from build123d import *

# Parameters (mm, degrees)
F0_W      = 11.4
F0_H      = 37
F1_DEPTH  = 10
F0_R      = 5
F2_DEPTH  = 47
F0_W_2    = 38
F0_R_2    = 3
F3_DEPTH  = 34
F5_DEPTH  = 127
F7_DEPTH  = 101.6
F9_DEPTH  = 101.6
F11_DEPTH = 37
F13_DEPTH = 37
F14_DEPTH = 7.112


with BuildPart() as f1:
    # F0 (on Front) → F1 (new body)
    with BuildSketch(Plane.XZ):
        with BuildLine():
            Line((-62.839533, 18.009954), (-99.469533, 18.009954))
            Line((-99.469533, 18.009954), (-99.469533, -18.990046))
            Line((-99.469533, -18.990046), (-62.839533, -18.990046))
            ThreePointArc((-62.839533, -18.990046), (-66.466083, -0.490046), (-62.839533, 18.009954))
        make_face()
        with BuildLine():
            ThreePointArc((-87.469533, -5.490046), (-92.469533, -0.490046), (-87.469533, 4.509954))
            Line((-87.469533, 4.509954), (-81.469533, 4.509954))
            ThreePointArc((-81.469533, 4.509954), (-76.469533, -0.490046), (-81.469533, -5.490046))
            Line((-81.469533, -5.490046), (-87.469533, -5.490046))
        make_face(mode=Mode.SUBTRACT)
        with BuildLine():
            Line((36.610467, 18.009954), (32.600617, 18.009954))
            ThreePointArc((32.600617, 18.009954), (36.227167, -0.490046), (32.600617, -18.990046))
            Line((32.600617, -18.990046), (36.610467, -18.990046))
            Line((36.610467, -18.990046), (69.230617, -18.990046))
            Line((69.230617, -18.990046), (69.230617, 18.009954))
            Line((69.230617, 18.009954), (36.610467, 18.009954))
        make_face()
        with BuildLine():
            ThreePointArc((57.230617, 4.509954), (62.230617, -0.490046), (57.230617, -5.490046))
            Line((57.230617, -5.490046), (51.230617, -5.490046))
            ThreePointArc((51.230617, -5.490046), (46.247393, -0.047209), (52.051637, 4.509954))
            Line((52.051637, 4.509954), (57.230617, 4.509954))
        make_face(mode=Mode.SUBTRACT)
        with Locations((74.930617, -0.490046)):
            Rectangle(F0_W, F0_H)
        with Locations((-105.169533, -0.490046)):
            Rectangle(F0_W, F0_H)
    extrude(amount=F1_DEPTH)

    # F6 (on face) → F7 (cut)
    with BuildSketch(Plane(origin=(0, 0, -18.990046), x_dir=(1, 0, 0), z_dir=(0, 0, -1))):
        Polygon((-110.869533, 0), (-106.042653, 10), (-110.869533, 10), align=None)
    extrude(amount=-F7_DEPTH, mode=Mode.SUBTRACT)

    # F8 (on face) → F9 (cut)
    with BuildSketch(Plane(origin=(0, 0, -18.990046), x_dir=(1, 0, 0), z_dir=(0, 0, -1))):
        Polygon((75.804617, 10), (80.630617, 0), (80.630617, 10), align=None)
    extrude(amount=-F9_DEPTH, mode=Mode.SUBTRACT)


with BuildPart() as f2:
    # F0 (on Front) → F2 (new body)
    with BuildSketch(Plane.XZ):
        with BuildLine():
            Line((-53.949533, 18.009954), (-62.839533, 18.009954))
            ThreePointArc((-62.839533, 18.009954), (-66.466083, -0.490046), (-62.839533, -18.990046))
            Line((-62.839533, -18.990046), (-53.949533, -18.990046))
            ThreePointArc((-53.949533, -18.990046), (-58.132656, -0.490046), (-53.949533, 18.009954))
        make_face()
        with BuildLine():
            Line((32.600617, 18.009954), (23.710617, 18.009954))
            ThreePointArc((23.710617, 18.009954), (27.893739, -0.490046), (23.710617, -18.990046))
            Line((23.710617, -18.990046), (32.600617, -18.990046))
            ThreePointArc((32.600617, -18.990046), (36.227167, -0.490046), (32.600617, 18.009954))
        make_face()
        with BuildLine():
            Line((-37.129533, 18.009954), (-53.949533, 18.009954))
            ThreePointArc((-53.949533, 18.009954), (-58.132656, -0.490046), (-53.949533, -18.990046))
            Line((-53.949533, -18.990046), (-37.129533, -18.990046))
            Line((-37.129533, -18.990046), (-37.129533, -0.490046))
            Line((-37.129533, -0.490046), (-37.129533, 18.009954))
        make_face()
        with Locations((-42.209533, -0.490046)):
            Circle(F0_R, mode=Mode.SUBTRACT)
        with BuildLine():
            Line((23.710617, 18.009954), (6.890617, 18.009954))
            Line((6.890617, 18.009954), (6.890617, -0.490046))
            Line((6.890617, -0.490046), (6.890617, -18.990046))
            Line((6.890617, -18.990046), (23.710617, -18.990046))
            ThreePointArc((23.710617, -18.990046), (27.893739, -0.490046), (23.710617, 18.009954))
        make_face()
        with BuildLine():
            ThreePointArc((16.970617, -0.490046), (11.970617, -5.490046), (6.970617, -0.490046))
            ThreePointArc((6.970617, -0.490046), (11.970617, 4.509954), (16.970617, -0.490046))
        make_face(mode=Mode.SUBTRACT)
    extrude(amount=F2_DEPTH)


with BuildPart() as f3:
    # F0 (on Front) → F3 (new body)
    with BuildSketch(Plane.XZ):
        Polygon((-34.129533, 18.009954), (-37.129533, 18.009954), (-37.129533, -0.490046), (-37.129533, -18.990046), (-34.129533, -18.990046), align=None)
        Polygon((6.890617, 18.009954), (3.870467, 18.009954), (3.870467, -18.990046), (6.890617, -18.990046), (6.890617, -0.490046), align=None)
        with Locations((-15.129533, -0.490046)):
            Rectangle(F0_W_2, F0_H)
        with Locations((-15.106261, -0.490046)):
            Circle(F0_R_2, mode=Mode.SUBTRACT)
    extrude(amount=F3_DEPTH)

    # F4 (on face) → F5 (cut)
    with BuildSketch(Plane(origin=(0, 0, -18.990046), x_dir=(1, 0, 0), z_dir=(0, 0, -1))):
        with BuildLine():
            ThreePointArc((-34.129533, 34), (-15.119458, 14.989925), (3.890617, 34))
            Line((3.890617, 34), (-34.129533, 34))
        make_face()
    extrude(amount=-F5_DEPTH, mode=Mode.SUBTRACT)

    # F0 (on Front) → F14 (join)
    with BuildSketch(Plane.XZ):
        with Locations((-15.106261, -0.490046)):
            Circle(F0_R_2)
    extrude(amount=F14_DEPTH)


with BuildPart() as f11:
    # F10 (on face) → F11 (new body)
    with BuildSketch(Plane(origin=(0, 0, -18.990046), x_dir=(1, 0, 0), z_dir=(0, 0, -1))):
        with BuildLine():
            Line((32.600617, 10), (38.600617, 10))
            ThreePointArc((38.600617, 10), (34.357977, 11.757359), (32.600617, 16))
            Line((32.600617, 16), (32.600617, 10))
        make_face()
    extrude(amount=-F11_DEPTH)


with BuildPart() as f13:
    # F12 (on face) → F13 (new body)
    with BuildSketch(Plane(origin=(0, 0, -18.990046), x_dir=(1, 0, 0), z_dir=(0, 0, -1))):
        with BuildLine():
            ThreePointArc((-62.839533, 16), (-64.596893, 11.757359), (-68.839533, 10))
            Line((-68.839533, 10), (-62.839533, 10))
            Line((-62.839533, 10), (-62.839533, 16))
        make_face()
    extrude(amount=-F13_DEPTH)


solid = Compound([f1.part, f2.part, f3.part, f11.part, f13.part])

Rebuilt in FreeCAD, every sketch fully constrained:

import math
import FreeCAD as App
import Part
import Sketcher
from FreeCAD import Vector
Q = App.Units.Quantity


def add_polygon(sketch, points):
    """Adds a closed chain of lines whose ends are joined by coincident constraints."""
    first, n = sketch.GeometryCount, len(points)
    for a, b in zip(points, points[1:] + points[:1]):
        sketch.addGeometry(Part.LineSegment(App.Vector(*a, 0), App.Vector(*b, 0)), False)
    for i in range(n):
        sketch.addConstraint(Sketcher.Constraint("Coincident", first + i, 2, first + (i + 1) % n, 1))

doc = App.newDocument("Part")
body = doc.addObject("PartDesign::Body", "Body")
body.AllowCompound = True

# Sketch on XZ plane
sketch1 = body.newObject("Sketcher::SketchObject", "Sketch")
sketch1.AttachmentSupport = (doc.getObject("XZ_Plane"), [""])
sketch1.MapMode = "FlatFace"
sketch1.addGeometry([
    Part.LineSegment(Vector(-63, 18, 0), Vector(-111, 18, 0)),  # 0
    Part.LineSegment(Vector(-111, 18, 0), Vector(-111, -19, 0)),  # 1
    Part.LineSegment(Vector(-111, -19, 0), Vector(-63, -19, 0)),  # 2
    Part.ArcOfCircle(Part.Circle(Vector(-17, 0, 0), Vector(0, 0, 1), 49), math.radians(158), math.radians(202)),  # 3
    Part.LineSegment(Vector(-81, -5, 0), Vector(-87, -5, 0)),  # 4
    Part.ArcOfCircle(Part.Circle(Vector(-87, 0, 0), Vector(0, 0, 1), 5), math.radians(90), math.radians(270)),  # 5
    Part.LineSegment(Vector(-87, 5, 0), Vector(-81, 5, 0)),  # 6
    Part.ArcOfCircle(Part.Circle(Vector(-81, 0, 0), Vector(0, 0, 1), 5), math.radians(-90), math.radians(90)),  # 7
    Part.ArcOfCircle(Part.Circle(Vector(-13, 0, 0), Vector(0, 0, 1), 49), math.radians(-22), math.radians(22)),  # 8
    Part.LineSegment(Vector(33, -19, 0), Vector(81, -19, 0)),  # 9
    Part.LineSegment(Vector(81, -19, 0), Vector(81, 18, 0)),  # 10
    Part.LineSegment(Vector(81, 18, 0), Vector(33, 18, 0)),  # 11
    Part.LineSegment(Vector(52, 5, 0), Vector(57, 5, 0)),  # 12
    Part.ArcOfCircle(Part.Circle(Vector(57, 0, 0), Vector(0, 0, 1), 5), math.radians(-90), math.radians(90)),  # 13
    Part.LineSegment(Vector(57, -5, 0), Vector(51, -5, 0)),  # 14
    Part.ArcOfCircle(Part.Circle(Vector(51, 0, 0), Vector(0, 0, 1), 5), math.radians(81), math.radians(270)),  # 15
], False)
sketch1.addConstraint([
    Sketcher.Constraint("Coincident", 0, 2, 1, 1),
    Sketcher.Constraint("Coincident", 1, 2, 2, 1),
    Sketcher.Constraint("Coincident", 2, 2, 3, 2),
    Sketcher.Constraint("Coincident", 3, 1, 0, 1),
    Sketcher.Constraint("Tangent", 4, 2, 5, 2),
    Sketcher.Constraint("Tangent", 5, 1, 6, 1),
    Sketcher.Constraint("Tangent", 6, 2, 7, 2),
    Sketcher.Constraint("Tangent", 7, 1, 4, 1),
    Sketcher.Constraint("Coincident", 8, 1, 9, 1),
    Sketcher.Constraint("Coincident", 9, 2, 10, 1),
    Sketcher.Constraint("Coincident", 10, 2, 11, 1),
    Sketcher.Constraint("Coincident", 11, 2, 8, 2),
    Sketcher.Constraint("Tangent", 12, 2, 13, 2),
    Sketcher.Constraint("Tangent", 13, 1, 14, 1),
    Sketcher.Constraint("Coincident", 14, 2, 15, 2),
    Sketcher.Constraint("Coincident", 15, 1, 12, 1),
    Sketcher.Constraint("Horizontal", 0),
    Sketcher.Constraint("Vertical", 1),
    Sketcher.Constraint("Horizontal", 2),
    Sketcher.Constraint("Horizontal", 4),
    Sketcher.Constraint("Horizontal", 6),
    Sketcher.Constraint("Horizontal", 9),
    Sketcher.Constraint("Vertical", 10),
    Sketcher.Constraint("Horizontal", 11),
    Sketcher.Constraint("Horizontal", 12),
    Sketcher.Constraint("Horizontal", 14),
    Sketcher.Constraint("Equal", 3, 8),
    Sketcher.Constraint("Equal", 7, 13),
    Sketcher.Constraint("Horizontal", 3, 3, 5, 3),
    Sketcher.Constraint("Horizontal", 7, 3, 8, 3),
    Sketcher.Constraint("Horizontal", 8, 3, 13, 3),
    Sketcher.Constraint("Horizontal", 2, 2, 8, 1),
    Sketcher.Constraint("Horizontal", 3, 1, 10, 2),
    Sketcher.Constraint("Vertical", 2, 2, 3, 1),
    Sketcher.Constraint("Equal", 2, 9),
    Sketcher.Constraint("Equal", 6, 14),
    Sketcher.Constraint("Radius", 5, Q("5 mm")),
    Sketcher.Constraint("DistanceX", 4, 2, 4, 1, Q("6 mm")),
    Sketcher.Constraint("DistanceY", 1, 2, 1, 1, Q("37 mm")),
    Sketcher.Constraint("DistanceX", 0, 2, 0, 1, Q("48.03 mm")),
    Sketcher.Constraint("DistanceX", 0, 2, 5, 3, Q("23.4 mm")),
    Sketcher.Constraint("DistanceX", 13, 3, 9, 2, Q("23.4 mm")),
    Sketcher.Constraint("Radius", 3, Q("48.999995 mm")),
    Sketcher.Constraint("Radius", 15, Q("5.031243 mm")),
    Sketcher.Constraint("DistanceX", 12, 1, 12, 2, Q("5.17898 mm")),
    Sketcher.Constraint("DistanceY", 15, 3, -1, 1, Q("0.4589 mm")),
    Sketcher.Constraint("DistanceX", 8, 3, -1, 1, Q("12.772828 mm")),
    Sketcher.Constraint("DistanceX", 3, 3, 8, 3, Q("4.69326 mm")),
])
pad1 = body.newObject("PartDesign::Pad", "Pad")
pad1.Profile = sketch1
pad1.Length = 10

# Sketch on XY plane
sketch2 = body.newObject("Sketcher::SketchObject", "Sketch001")
sketch2.AttachmentSupport = (doc.getObject("XY_Plane"), [""])
sketch2.MapMode = "FlatFace"
sketch2.AttachmentOffset = App.Placement(Vector(0, 0, -18.990046), App.Rotation())
add_polygon(sketch2, [(-110.9, 0), (-106, -10), (-110.9, -10)])  # lines 0-2
sketch2.addConstraint([
    Sketcher.Constraint("Horizontal", 1),
    Sketcher.Constraint("Vertical", 2),
    Sketcher.Constraint("PointOnObject", 2, 2, -1),
    Sketcher.Constraint("DistanceY", 2, 1, 2, 2, Q("10 mm")),
    Sketcher.Constraint("DistanceX", 1, 2, 1, 1, Q("4.82688 mm")),
    Sketcher.Constraint("DistanceX", 0, 2, -1, 1, Q("106.042653 mm")),
])
pocket1 = body.newObject("PartDesign::Pocket", "Pocket")
pocket1.Profile = sketch2
pocket1.Length = 101.6
pocket1.Reversed = True

# Sketch on XY plane
sketch3 = body.newObject("Sketcher::SketchObject", "Sketch002")
sketch3.AttachmentSupport = (doc.getObject("XY_Plane"), [""])
sketch3.MapMode = "FlatFace"
sketch3.AttachmentOffset = App.Placement(Vector(0, 0, -18.990046), App.Rotation())
add_polygon(sketch3, [(75.8, -10), (80.6, 0), (80.6, -10)])  # lines 0-2
sketch3.addConstraint([
    Sketcher.Constraint("Vertical", 1),
    Sketcher.Constraint("Horizontal", 2),
    Sketcher.Constraint("PointOnObject", 0, 2, -1),
    Sketcher.Constraint("DistanceY", 1, 2, 1, 1, Q("10 mm")),
    Sketcher.Constraint("DistanceX", 2, 2, 2, 1, Q("4.826 mm")),
    Sketcher.Constraint("DistanceX", -1, 1, 0, 2, Q("80.630617 mm")),
])
pocket2 = body.newObject("PartDesign::Pocket", "Pocket001")
pocket2.Profile = sketch3
pocket2.Length = 101.6
pocket2.Reversed = True
body2 = doc.addObject("PartDesign::Body", "Body001")
body2.AllowCompound = True

# Sketch on XZ plane
sketch4 = body2.newObject("Sketcher::SketchObject", "Sketch003")
sketch4.AttachmentSupport = (doc.getObject("XZ_Plane001"), [""])
sketch4.MapMode = "FlatFace"
sketch4.addGeometry([
    Part.ArcOfCircle(Part.Circle(Vector(-17, 0, 0), Vector(0, 0, 1), 49), math.radians(158), math.radians(202)),  # 0
    Part.LineSegment(Vector(-63, -19, 0), Vector(-37, -19, 0)),  # 1
    Part.LineSegment(Vector(-37, -19, 0), Vector(-37, 18, 0)),  # 2
    Part.LineSegment(Vector(-37, 18, 0), Vector(-63, 18, 0)),  # 3
    Part.Circle(Vector(-42, 0, 0), Vector(0, 0, 1), 5),  # 4
    Part.LineSegment(Vector(33, 18, 0), Vector(7, 18, 0)),  # 5
    Part.LineSegment(Vector(7, 18, 0), Vector(7, -19, 0)),  # 6
    Part.LineSegment(Vector(7, -19, 0), Vector(33, -19, 0)),  # 7
    Part.ArcOfCircle(Part.Circle(Vector(-13, 0, 0), Vector(0, 0, 1), 49), math.radians(-22), math.radians(22)),  # 8
    Part.Circle(Vector(12, 0, 0), Vector(0, 0, 1), 5),  # 9
], False)
sketch4.addConstraint([
    Sketcher.Constraint("Coincident", 0, 2, 1, 1),
    Sketcher.Constraint("Coincident", 1, 2, 2, 1),
    Sketcher.Constraint("Coincident", 2, 2, 3, 1),
    Sketcher.Constraint("Coincident", 3, 2, 0, 1),
    Sketcher.Constraint("Coincident", 5, 2, 6, 1),
    Sketcher.Constraint("Coincident", 6, 2, 7, 1),
    Sketcher.Constraint("Coincident", 7, 2, 8, 1),
    Sketcher.Constraint("Coincident", 8, 2, 5, 1),
    Sketcher.Constraint("Horizontal", 1),
    Sketcher.Constraint("Vertical", 2),
    Sketcher.Constraint("Horizontal", 3),
    Sketcher.Constraint("Horizontal", 5),
    Sketcher.Constraint("Vertical", 6),
    Sketcher.Constraint("Horizontal", 7),
    Sketcher.Constraint("Equal", 0, 8),
    Sketcher.Constraint("Equal", 4, 9),
    Sketcher.Constraint("Horizontal", 0, 3, 4, 3),
    Sketcher.Constraint("Horizontal", 4, 3, 8, 3),
    Sketcher.Constraint("Horizontal", 8, 3, 9, 3),
    Sketcher.Constraint("Horizontal", 3, 2, 5, 2),
    Sketcher.Constraint("Horizontal", 1, 2, 6, 2),
    Sketcher.Constraint("Vertical", 0, 2, 3, 2),
    Sketcher.Constraint("Equal", 3, 5),
    Sketcher.Constraint("Diameter", 4, Q("10 mm")),
    Sketcher.Constraint("DistanceY", 2, 1, 2, 2, Q("37 mm")),
    Sketcher.Constraint("DistanceX", 1, 1, 1, 2, Q("25.71 mm")),
    Sketcher.Constraint("DistanceX", 0, 2, 4, 3, Q("20.63 mm")),
    Sketcher.Constraint("DistanceX", 5, 2, 9, 3, Q("5.08 mm")),
    Sketcher.Constraint("Radius", 0, Q("48.999995 mm")),
    Sketcher.Constraint("DistanceX", 8, 3, -1, 1, Q("12.772828 mm")),
    Sketcher.Constraint("DistanceX", 0, 3, 8, 3, Q("4.69326 mm")),
    Sketcher.Constraint("DistanceY", 0, 3, -1, 1, Q("0.490046 mm")),
])
pad2 = body2.newObject("PartDesign::Pad", "Pad001")
pad2.Profile = sketch4
pad2.Length = 47
body3 = doc.addObject("PartDesign::Body", "Body002")

# Sketch on XZ plane
sketch5 = body3.newObject("Sketcher::SketchObject", "Sketch004")
sketch5.AttachmentSupport = (doc.getObject("XZ_Plane002"), [""])
sketch5.MapMode = "FlatFace"
add_polygon(sketch5, [(-37.1, 18), (-37.1, -19), (6.9, -19), (6.9, 18)])  # lines 0-3
sketch5.addGeometry(Part.Circle(Vector(-15.1, -0.5, 0), Vector(0, 0, 1), 3), False)  # 4
sketch5.addConstraint([
    Sketcher.Constraint("Vertical", 0),
    Sketcher.Constraint("Horizontal", 1),
    Sketcher.Constraint("Vertical", 2),
    Sketcher.Constraint("Horizontal", 3),
    Sketcher.Constraint("Diameter", 4, Q("6 mm")),
    Sketcher.Constraint("DistanceY", 0, 2, 0, 1, Q("37 mm")),
    Sketcher.Constraint("DistanceY", 0, 2, 4, 3, Q("18.5 mm")),
    Sketcher.Constraint("DistanceX", 1, 1, 1, 2, Q("44.02015 mm")),
    Sketcher.Constraint("DistanceX", 4, 3, -1, 1, Q("15.106261 mm")),
    Sketcher.Constraint("DistanceY", 4, 3, -1, 1, Q("0.490046 mm")),
    Sketcher.Constraint("DistanceX", 0, 2, -1, 1, Q("37.129533 mm")),
])
pad3 = body3.newObject("PartDesign::Pad", "Pad002")
pad3.Profile = sketch5
pad3.Length = 34

# Sketch on XY plane
sketch6 = body3.newObject("Sketcher::SketchObject", "Sketch005")
sketch6.AttachmentSupport = (doc.getObject("XY_Plane002"), [""])
sketch6.MapMode = "FlatFace"
sketch6.AttachmentOffset = App.Placement(Vector(0, 0, -18.990046), App.Rotation())
sketch6.addGeometry([
    Part.ArcOfCircle(Part.Circle(Vector(-15, -34, 0), Vector(0, 0, 1), 19), math.radians(0), math.radians(180)),
    Part.LineSegment(Vector(4, -34, 0), Vector(-34, -34, 0)),
], False)
sketch6.addConstraint([
    Sketcher.Constraint("Coincident", 0, 1, 1, 1),
    Sketcher.Constraint("Coincident", 1, 2, 0, 2),
    Sketcher.Constraint("Horizontal", 1),
    Sketcher.Constraint("DistanceY", 0, 3, -1, 1, Q("34 mm")),
    Sketcher.Constraint("DistanceY", 0, 1, -1, 1, Q("34 mm")),
    Sketcher.Constraint("Radius", 0, Q("19.010075 mm")),
    Sketcher.Constraint("DistanceX", 0, 3, -1, 1, Q("15.119458 mm")),
])
pocket3 = body3.newObject("PartDesign::Pocket", "Pocket002")
pocket3.Profile = sketch6
pocket3.Length = 127
pocket3.Reversed = True

# Sketch on XZ plane
sketch7 = body3.newObject("Sketcher::SketchObject", "Sketch006")
sketch7.AttachmentSupport = (doc.getObject("XZ_Plane002"), [""])
sketch7.MapMode = "FlatFace"
sketch7.addGeometry(Part.Circle(Vector(-15.1, -0.5, 0), Vector(0, 0, 1), 3), False)
sketch7.addConstraint([
    Sketcher.Constraint("Diameter", 0, Q("6 mm")),
    Sketcher.Constraint("DistanceX", 0, 3, -1, 1, Q("15.106261 mm")),
    Sketcher.Constraint("DistanceY", 0, 3, -1, 1, Q("0.490046 mm")),
])
pad4 = body3.newObject("PartDesign::Pad", "Pad003")
pad4.Profile = sketch7
pad4.Length = 7.112
body4 = doc.addObject("PartDesign::Body", "Body003")

# Sketch on XY plane
sketch8 = body4.newObject("Sketcher::SketchObject", "Sketch007")
sketch8.AttachmentSupport = (doc.getObject("XY_Plane003"), [""])
sketch8.MapMode = "FlatFace"
sketch8.AttachmentOffset = App.Placement(Vector(0, 0, -18.990046), App.Rotation())
sketch8.addGeometry([
    Part.LineSegment(Vector(33, -10, 0), Vector(39, -10, 0)),
    Part.ArcOfCircle(Part.Circle(Vector(39, -16, 0), Vector(0, 0, 1), 6), math.radians(90), math.radians(180)),
    Part.LineSegment(Vector(33, -16, 0), Vector(33, -10, 0)),
], False)
sketch8.addConstraint([
    Sketcher.Constraint("Tangent", 0, 2, 1, 1),
    Sketcher.Constraint("Tangent", 1, 2, 2, 1),
    Sketcher.Constraint("Coincident", 2, 2, 0, 1),
    Sketcher.Constraint("Horizontal", 0),
    Sketcher.Constraint("Vertical", 2),
    Sketcher.Constraint("Radius", 1, Q("6.000001 mm")),
    Sketcher.Constraint("DistanceY", 1, 3, -1, 1, Q("16.000001 mm")),
    Sketcher.Constraint("DistanceX", -1, 1, 1, 3, Q("38.600618 mm")),
])
pad5 = body4.newObject("PartDesign::Pad", "Pad004")
pad5.Profile = sketch8
pad5.Length = 37
body5 = doc.addObject("PartDesign::Body", "Body004")

# Sketch on XY plane
sketch9 = body5.newObject("Sketcher::SketchObject", "Sketch008")
sketch9.AttachmentSupport = (doc.getObject("XY_Plane004"), [""])
sketch9.MapMode = "FlatFace"
sketch9.AttachmentOffset = App.Placement(Vector(0, 0, -18.990046), App.Rotation())
sketch9.addGeometry([
    Part.ArcOfCircle(Part.Circle(Vector(-69, -16, 0), Vector(0, 0, 1), 6), math.radians(0), math.radians(90)),
    Part.LineSegment(Vector(-69, -10, 0), Vector(-63, -10, 0)),
    Part.LineSegment(Vector(-63, -10, 0), Vector(-63, -16, 0)),
], False)
sketch9.addConstraint([
    Sketcher.Constraint("Tangent", 0, 2, 1, 1),
    Sketcher.Constraint("Coincident", 1, 2, 2, 1),
    Sketcher.Constraint("Tangent", 2, 2, 0, 1),
    Sketcher.Constraint("Horizontal", 1),
    Sketcher.Constraint("Vertical", 2),
    Sketcher.Constraint("Radius", 0, Q("6.000001 mm")),
    Sketcher.Constraint("DistanceY", 0, 3, -1, 1, Q("16.000001 mm")),
    Sketcher.Constraint("DistanceX", 0, 3, -1, 1, Q("68.839534 mm")),
])
pad6 = body5.newObject("PartDesign::Pad", "Pad005")
pad6.Profile = sketch9
pad6.Length = 37

doc.recompute()
